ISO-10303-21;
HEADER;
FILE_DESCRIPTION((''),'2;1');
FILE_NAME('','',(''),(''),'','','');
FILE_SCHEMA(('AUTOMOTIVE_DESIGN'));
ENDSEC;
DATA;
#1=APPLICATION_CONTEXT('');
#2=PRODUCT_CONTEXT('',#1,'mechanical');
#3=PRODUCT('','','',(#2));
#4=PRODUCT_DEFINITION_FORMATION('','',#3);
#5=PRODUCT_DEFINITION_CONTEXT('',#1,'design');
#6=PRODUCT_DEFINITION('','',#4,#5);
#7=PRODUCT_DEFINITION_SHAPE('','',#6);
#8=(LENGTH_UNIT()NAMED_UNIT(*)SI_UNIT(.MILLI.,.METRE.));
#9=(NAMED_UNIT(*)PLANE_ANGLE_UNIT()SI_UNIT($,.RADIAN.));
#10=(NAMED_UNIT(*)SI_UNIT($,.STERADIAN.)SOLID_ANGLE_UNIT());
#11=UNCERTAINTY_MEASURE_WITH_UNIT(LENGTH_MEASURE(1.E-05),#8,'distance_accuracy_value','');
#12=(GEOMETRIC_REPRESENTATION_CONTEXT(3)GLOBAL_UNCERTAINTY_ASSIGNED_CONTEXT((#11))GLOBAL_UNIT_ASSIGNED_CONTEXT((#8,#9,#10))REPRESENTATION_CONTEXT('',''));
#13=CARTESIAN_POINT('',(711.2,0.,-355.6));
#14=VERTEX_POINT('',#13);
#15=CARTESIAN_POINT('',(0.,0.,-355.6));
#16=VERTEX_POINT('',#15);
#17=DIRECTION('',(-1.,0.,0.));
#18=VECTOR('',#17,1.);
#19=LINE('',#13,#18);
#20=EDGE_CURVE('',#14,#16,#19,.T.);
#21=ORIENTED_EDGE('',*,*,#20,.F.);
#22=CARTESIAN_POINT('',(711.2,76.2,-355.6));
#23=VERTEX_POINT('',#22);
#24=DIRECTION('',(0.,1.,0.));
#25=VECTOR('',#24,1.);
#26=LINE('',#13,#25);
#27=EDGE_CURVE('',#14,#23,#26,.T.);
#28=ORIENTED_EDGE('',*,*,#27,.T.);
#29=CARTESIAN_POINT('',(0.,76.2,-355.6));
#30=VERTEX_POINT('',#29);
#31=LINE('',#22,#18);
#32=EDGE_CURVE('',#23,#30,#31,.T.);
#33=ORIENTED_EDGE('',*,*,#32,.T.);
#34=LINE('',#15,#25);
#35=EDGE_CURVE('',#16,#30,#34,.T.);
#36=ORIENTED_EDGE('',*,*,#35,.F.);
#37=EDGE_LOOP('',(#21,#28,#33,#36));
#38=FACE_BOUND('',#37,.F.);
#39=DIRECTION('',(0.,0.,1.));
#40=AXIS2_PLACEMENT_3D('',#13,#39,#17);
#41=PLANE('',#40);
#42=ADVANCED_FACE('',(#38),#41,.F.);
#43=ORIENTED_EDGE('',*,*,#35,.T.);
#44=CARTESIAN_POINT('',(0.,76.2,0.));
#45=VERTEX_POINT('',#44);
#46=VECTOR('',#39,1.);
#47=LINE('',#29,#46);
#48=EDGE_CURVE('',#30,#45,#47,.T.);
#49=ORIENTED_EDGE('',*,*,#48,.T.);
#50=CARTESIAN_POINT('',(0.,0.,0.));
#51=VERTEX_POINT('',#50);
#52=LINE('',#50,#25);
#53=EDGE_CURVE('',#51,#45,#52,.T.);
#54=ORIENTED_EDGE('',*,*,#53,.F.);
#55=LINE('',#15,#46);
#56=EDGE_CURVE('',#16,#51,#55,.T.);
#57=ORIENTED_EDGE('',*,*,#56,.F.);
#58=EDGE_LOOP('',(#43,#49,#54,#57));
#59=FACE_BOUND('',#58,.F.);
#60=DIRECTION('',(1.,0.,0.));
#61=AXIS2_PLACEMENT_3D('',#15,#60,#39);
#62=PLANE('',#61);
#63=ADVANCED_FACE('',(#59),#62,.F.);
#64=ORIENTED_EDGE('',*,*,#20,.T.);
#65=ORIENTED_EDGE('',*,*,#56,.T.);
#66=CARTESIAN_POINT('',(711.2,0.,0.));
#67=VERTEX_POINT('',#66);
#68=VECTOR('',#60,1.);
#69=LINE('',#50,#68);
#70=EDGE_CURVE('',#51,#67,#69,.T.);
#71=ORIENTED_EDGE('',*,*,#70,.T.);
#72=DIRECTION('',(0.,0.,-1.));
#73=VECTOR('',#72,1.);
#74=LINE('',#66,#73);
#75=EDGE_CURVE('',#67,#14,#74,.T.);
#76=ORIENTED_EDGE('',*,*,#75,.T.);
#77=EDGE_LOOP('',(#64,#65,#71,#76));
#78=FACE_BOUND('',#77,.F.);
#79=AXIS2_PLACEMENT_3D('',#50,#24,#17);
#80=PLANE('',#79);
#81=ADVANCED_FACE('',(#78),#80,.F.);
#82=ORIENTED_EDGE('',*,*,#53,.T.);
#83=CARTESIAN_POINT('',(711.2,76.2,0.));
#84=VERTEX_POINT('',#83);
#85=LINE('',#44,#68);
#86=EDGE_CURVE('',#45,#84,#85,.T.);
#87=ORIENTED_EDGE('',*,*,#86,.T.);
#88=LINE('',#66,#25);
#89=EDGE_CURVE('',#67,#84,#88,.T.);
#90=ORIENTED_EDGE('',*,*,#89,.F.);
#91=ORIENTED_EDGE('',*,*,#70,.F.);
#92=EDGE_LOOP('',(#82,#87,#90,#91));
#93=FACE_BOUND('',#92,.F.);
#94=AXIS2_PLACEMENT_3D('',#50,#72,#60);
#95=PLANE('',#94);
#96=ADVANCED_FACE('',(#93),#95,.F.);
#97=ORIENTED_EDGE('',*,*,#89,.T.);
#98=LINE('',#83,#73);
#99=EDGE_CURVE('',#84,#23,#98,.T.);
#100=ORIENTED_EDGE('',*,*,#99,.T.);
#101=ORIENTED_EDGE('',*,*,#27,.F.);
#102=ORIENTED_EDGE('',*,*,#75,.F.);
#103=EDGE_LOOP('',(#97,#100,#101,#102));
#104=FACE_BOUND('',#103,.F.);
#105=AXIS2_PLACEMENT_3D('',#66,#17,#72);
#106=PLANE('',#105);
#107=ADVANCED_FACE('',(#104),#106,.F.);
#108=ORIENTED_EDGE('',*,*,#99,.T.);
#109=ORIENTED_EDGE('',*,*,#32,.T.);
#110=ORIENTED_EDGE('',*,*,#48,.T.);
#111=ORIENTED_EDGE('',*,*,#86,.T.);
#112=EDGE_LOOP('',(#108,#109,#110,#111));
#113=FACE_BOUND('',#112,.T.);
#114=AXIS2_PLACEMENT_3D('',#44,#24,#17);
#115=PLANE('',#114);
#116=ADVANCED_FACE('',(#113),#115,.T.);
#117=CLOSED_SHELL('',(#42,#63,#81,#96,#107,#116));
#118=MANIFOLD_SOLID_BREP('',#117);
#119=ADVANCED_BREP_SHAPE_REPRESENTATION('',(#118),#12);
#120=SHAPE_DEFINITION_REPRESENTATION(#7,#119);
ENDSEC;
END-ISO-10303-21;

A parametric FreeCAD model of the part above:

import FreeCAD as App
import Part
import Sketcher
Q = App.Units.Quantity


def add_polygon(sketch, points):
    """Adds a closed chain of lines whose ends are joined by coincident constraints."""
    first, n = sketch.GeometryCount, len(points)
    for a, b in zip(points, points[1:] + points[:1]):
        sketch.addGeometry(Part.LineSegment(App.Vector(*a, 0), App.Vector(*b, 0)), False)
    for i in range(n):
        sketch.addConstraint(Sketcher.Constraint("Coincident", first + i, 2, first + (i + 1) % n, 1))

doc = App.newDocument("Part")
body = doc.addObject("PartDesign::Body", "Body")

# Sketch on XZ plane
sketch1 = body.newObject("Sketcher::SketchObject", "Sketch")
sketch1.AttachmentSupport = (doc.getObject("XZ_Plane"), [""])
sketch1.MapMode = "FlatFace"
add_polygon(sketch1, [(0, -356), (0, 0), (711, 0), (711, -356)])  # lines 0-3
sketch1.addConstraint(Sketcher.Constraint("Vertical", 0))
sketch1.addConstraint(Sketcher.Constraint("Horizontal", 1))
sketch1.addConstraint(Sketcher.Constraint("Vertical", 2))
sketch1.addConstraint(Sketcher.Constraint("Horizontal", 3))
sketch1.addConstraint(Sketcher.Constraint("Coincident", 0, 2, -1, 1))
sketch1.addConstraint(Sketcher.Constraint("DistanceX", 1, 1, 1, 2, Q("28 in")))
sketch1.addConstraint(Sketcher.Constraint("DistanceY", 0, 1, 0, 2, Q("14 in")))
pad1 = body.newObject("PartDesign::Pad", "Pad")
pad1.Profile = sketch1
pad1.Length = Q("3 in")
pad1.Reversed = True

doc.recompute()
